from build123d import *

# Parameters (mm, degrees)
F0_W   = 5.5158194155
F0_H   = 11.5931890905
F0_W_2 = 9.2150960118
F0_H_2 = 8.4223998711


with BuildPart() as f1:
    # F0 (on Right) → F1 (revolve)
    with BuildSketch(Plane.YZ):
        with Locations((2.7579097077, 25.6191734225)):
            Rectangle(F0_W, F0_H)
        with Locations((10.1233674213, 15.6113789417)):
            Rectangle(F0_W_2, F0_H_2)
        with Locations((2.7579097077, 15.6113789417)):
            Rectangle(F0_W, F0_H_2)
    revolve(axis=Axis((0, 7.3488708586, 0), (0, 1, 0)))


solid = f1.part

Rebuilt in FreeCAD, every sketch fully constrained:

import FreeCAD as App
import Part
import Sketcher
from FreeCAD import Vector
Q = App.Units.Quantity

doc = App.newDocument("Part")
params = doc.addObject("Spreadsheet::Sheet", "Params")
for row, (alias, value) in enumerate([
    ("revolution_angle", "360 deg"),
], start=1):
    params.set(f"A{row}", alias)
    params.set(f"B{row}", "=" + value)
    params.setAlias(f"B{row}", alias)

body = doc.addObject("PartDesign::Body", "Body")

sketch1 = body.newObject("Sketcher::SketchObject", "Sketch")
sketch1.AttachmentSupport = (doc.getObject("YZ_Plane"), [""])
sketch1.MapMode = "FlatFace"
sketch1.addGeometry([
    Part.LineSegment(Vector(0, 31, 0), Vector(0, 11, 0)),
    Part.LineSegment(Vector(0, 11, 0), Vector(15, 11, 0)),
    Part.LineSegment(Vector(15, 11, 0), Vector(15, 20, 0)),
    Part.LineSegment(Vector(15, 20, 0), Vector(6, 20, 0)),
    Part.LineSegment(Vector(6, 20, 0), Vector(6, 31, 0)),
    Part.LineSegment(Vector(6, 31, 0), Vector(0, 31, 0)),
], False)
sketch1.addConstraint([
    Sketcher.Constraint("Coincident", 0, 2, 1, 1),
    Sketcher.Constraint("Coincident", 1, 2, 2, 1),
    Sketcher.Constraint("Coincident", 2, 2, 3, 1),
    Sketcher.Constraint("Coincident", 3, 2, 4, 1),
    Sketcher.Constraint("Coincident", 4, 2, 5, 1),
    Sketcher.Constraint("Coincident", 5, 2, 0, 1),
    Sketcher.Constraint("Vertical", 0),
    Sketcher.Constraint("Horizontal", 1),
    Sketcher.Constraint("Vertical", 2),
    Sketcher.Constraint("Horizontal", 3),
    Sketcher.Constraint("Vertical", 4),
    Sketcher.Constraint("Horizontal", 5),
    Sketcher.Constraint("PointOnObject", 0, 2, -2),
    Sketcher.Constraint("DistanceY", 2, 1, 2, 2, Q("8.4224 mm")),
    Sketcher.Constraint("DistanceX", 5, 2, 5, 1, Q("5.515819 mm")),
    Sketcher.Constraint("DistanceY", 0, 2, 0, 1, Q("20.015589 mm")),
    Sketcher.Constraint("DistanceX", 1, 1, 1, 2, Q("14.730915 mm")),
    Sketcher.Constraint("DistanceY", -1, 1, 0, 2, Q("11.400179 mm")),
])
revolution = body.newObject("PartDesign::Revolution", "Revolution")
revolution.Profile = sketch1
revolution.ReferenceAxis = (sketch1, ["H_Axis"])
revolution.setExpression("Angle", "Params.revolution_angle")

doc.recompute()
